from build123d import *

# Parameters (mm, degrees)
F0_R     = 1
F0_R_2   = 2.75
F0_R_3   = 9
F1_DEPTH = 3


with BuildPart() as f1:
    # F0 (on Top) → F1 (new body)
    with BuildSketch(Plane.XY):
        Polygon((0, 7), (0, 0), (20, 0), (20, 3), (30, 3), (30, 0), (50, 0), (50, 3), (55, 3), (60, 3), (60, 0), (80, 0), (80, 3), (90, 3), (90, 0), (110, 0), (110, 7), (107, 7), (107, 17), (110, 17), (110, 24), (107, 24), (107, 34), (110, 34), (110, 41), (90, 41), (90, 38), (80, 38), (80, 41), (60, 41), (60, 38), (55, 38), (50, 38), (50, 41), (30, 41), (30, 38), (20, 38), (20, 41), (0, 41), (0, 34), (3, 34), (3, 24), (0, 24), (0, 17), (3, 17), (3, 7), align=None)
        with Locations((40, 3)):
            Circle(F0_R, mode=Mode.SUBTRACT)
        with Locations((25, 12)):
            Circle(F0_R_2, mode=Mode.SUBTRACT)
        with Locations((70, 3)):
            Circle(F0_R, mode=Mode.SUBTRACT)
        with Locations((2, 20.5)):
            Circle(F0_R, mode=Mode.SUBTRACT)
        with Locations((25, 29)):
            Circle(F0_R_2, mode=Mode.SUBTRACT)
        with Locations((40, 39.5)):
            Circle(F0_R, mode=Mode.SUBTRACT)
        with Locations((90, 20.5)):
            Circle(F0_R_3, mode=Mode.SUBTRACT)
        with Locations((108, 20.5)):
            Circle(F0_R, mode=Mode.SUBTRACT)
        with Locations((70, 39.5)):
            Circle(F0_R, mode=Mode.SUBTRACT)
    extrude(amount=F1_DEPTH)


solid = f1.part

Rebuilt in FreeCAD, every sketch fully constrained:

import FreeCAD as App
import Part
import Sketcher

doc = App.newDocument("Part")
body = doc.addObject("PartDesign::Body", "Body")

# Sketch on XY plane
sketch1 = body.newObject("Sketcher::SketchObject", "Sketch")
sketch1.AttachmentSupport = (doc.getObject("XY_Plane"), [""])
sketch1.MapMode = "FlatFace"
sketch1.addGeometry(Part.LineSegment(App.Vector(0, 7, 0), App.Vector(0, 0, 0)), False)
sketch1.addGeometry(Part.LineSegment(App.Vector(0, 0, 0), App.Vector(20, 0, 0)), False)
sketch1.addGeometry(Part.LineSegment(App.Vector(20, 0, 0), App.Vector(20, 3, 0)), False)
sketch1.addGeometry(Part.LineSegment(App.Vector(20, 3, 0), App.Vector(30, 3, 0)), False)
sketch1.addGeometry(Part.LineSegment(App.Vector(30, 3, 0), App.Vector(30, 0, 0)), False)
sketch1.addGeometry(Part.LineSegment(App.Vector(30, 0, 0), App.Vector(50, 0, 0)), False)
sketch1.addGeometry(Part.LineSegment(App.Vector(50, 0, 0), App.Vector(50, 3, 0)), False)
sketch1.addGeometry(Part.LineSegment(App.Vector(50, 3, 0), App.Vector(60, 3, 0)), False)
sketch1.addGeometry(Part.LineSegment(App.Vector(60, 3, 0), App.Vector(60, 0, 0)), False)
sketch1.addGeometry(Part.LineSegment(App.Vector(60, 0, 0), App.Vector(80, 0, 0)), False)
sketch1.addGeometry(Part.LineSegment(App.Vector(80, 0, 0), App.Vector(80, 3, 0)), False)
sketch1.addGeometry(Part.LineSegment(App.Vector(80, 3, 0), App.Vector(90, 3, 0)), False)
sketch1.addGeometry(Part.LineSegment(App.Vector(90, 3, 0), App.Vector(90, 0, 0)), False)
sketch1.addGeometry(Part.LineSegment(App.Vector(90, 0, 0), App.Vector(110, 0, 0)), False)
sketch1.addGeometry(Part.LineSegment(App.Vector(110, 0, 0), App.Vector(110, 7, 0)), False)
sketch1.addGeometry(Part.LineSegment(App.Vector(110, 7, 0), App.Vector(107, 7, 0)), False)
sketch1.addGeometry(Part.LineSegment(App.Vector(107, 7, 0), App.Vector(107, 17, 0)), False)
sketch1.addGeometry(Part.LineSegment(App.Vector(107, 17, 0), App.Vector(110, 17, 0)), False)
sketch1.addGeometry(Part.LineSegment(App.Vector(110, 17, 0), App.Vector(110, 24, 0)), False)
sketch1.addGeometry(Part.LineSegment(App.Vector(110, 24, 0), App.Vector(107, 24, 0)), False)
sketch1.addGeometry(Part.LineSegment(App.Vector(107, 24, 0), App.Vector(107, 34, 0)), False)
sketch1.addGeometry(Part.LineSegment(App.Vector(107, 34, 0), App.Vector(110, 34, 0)), False)
sketch1.addGeometry(Part.LineSegment(App.Vector(110, 34, 0), App.Vector(110, 41, 0)), False)
sketch1.addGeometry(Part.LineSegment(App.Vector(110, 41, 0), App.Vector(90, 41, 0)), False)
sketch1.addGeometry(Part.LineSegment(App.Vector(90, 41, 0), App.Vector(90, 38, 0)), False)
sketch1.addGeometry(Part.LineSegment(App.Vector(90, 38, 0), App.Vector(80, 38, 0)), False)
sketch1.addGeometry(Part.LineSegment(App.Vector(80, 38, 0), App.Vector(80, 41, 0)), False)
sketch1.addGeometry(Part.LineSegment(App.Vector(80, 41, 0), App.Vector(60, 41, 0)), False)
sketch1.addGeometry(Part.LineSegment(App.Vector(60, 41, 0), App.Vector(60, 38, 0)), False)
sketch1.addGeometry(Part.LineSegment(App.Vector(60, 38, 0), App.Vector(50, 38, 0)), False)
sketch1.addGeometry(Part.LineSegment(App.Vector(50, 38, 0), App.Vector(50, 41, 0)), False)
sketch1.addGeometry(Part.LineSegment(App.Vector(50, 41, 0), App.Vector(30, 41, 0)), False)
sketch1.addGeometry(Part.LineSegment(App.Vector(30, 41, 0), App.Vector(30, 38, 0)), False)
sketch1.addGeometry(Part.LineSegment(App.Vector(30, 38, 0), App.Vector(20, 38, 0)), False)
sketch1.addGeometry(Part.LineSegment(App.Vector(20, 38, 0), App.Vector(20, 41, 0)), False)
sketch1.addGeometry(Part.LineSegment(App.Vector(20, 41, 0), App.Vector(0, 41, 0)), False)
sketch1.addGeometry(Part.LineSegment(App.Vector(0, 41, 0), App.Vector(0, 34, 0)), False)
sketch1.addGeometry(Part.LineSegment(App.Vector(0, 34, 0), App.Vector(3, 34, 0)), False)
sketch1.addGeometry(Part.LineSegment(App.Vector(3, 34, 0), App.Vector(3, 24, 0)), False)
sketch1.addGeometry(Part.LineSegment(App.Vector(3, 24, 0), App.Vector(0, 24, 0)), False)
sketch1.addGeometry(Part.LineSegment(App.Vector(0, 24, 0), App.Vector(0, 17, 0)), False)
sketch1.addGeometry(Part.LineSegment(App.Vector(0, 17, 0), App.Vector(3, 17, 0)), False)
sketch1.addGeometry(Part.LineSegment(App.Vector(3, 17, 0), App.Vector(3, 7, 0)), False)
sketch1.addGeometry(Part.LineSegment(App.Vector(3, 7, 0), App.Vector(0, 7, 0)), False)
sketch1.addGeometry(Part.Circle(App.Vector(40, 3, 0), App.Vector(0, 0, 1), 1), False)
sketch1.addGeometry(Part.Circle(App.Vector(25, 12, 0), App.Vector(0, 0, 1), 2.8), False)
sketch1.addGeometry(Part.Circle(App.Vector(2, 20.5, 0), App.Vector(0, 0, 1), 1), False)
sketch1.addGeometry(Part.Circle(App.Vector(70, 3, 0), App.Vector(0, 0, 1), 1), False)
sketch1.addGeometry(Part.Circle(App.Vector(90, 20.5, 0), App.Vector(0, 0, 1), 9), False)
sketch1.addGeometry(Part.Circle(App.Vector(108, 20.5, 0), App.Vector(0, 0, 1), 1), False)
sketch1.addGeometry(Part.Circle(App.Vector(25, 29, 0), App.Vector(0, 0, 1), 2.8), False)
sketch1.addGeometry(Part.Circle(App.Vector(40, 39.5, 0), App.Vector(0, 0, 1), 1), False)
sketch1.addGeometry(Part.Circle(App.Vector(70, 39.5, 0), App.Vector(0, 0, 1), 1), False)
sketch1.addConstraint(Sketcher.Constraint("Coincident", 0, 2, 1, 1))
sketch1.addConstraint(Sketcher.Constraint("Coincident", 1, 2, 2, 1))
sketch1.addConstraint(Sketcher.Constraint("Coincident", 2, 2, 3, 1))
sketch1.addConstraint(Sketcher.Constraint("Coincident", 3, 2, 4, 1))
sketch1.addConstraint(Sketcher.Constraint("Coincident", 4, 2, 5, 1))
sketch1.addConstraint(Sketcher.Constraint("Coincident", 5, 2, 6, 1))
sketch1.addConstraint(Sketcher.Constraint("Coincident", 6, 2, 7, 1))
sketch1.addConstraint(Sketcher.Constraint("Coincident", 7, 2, 8, 1))
sketch1.addConstraint(Sketcher.Constraint("Coincident", 8, 2, 9, 1))
sketch1.addConstraint(Sketcher.Constraint("Coincident", 9, 2, 10, 1))
sketch1.addConstraint(Sketcher.Constraint("Coincident", 10, 2, 11, 1))
sketch1.addConstraint(Sketcher.Constraint("Coincident", 11, 2, 12, 1))
sketch1.addConstraint(Sketcher.Constraint("Coincident", 12, 2, 13, 1))
sketch1.addConstraint(Sketcher.Constraint("Coincident", 13, 2, 14, 1))
sketch1.addConstraint(Sketcher.Constraint("Coincident", 14, 2, 15, 1))
sketch1.addConstraint(Sketcher.Constraint("Coincident", 15, 2, 16, 1))
sketch1.addConstraint(Sketcher.Constraint("Coincident", 16, 2, 17, 1))
sketch1.addConstraint(Sketcher.Constraint("Coincident", 17, 2, 18, 1))
sketch1.addConstraint(Sketcher.Constraint("Coincident", 18, 2, 19, 1))
sketch1.addConstraint(Sketcher.Constraint("Coincident", 19, 2, 20, 1))
sketch1.addConstraint(Sketcher.Constraint("Coincident", 20, 2, 21, 1))
sketch1.addConstraint(Sketcher.Constraint("Coincident", 21, 2, 22, 1))
sketch1.addConstraint(Sketcher.Constraint("Coincident", 22, 2, 23, 1))
sketch1.addConstraint(Sketcher.Constraint("Coincident", 23, 2, 24, 1))
sketch1.addConstraint(Sketcher.Constraint("Coincident", 24, 2, 25, 1))
sketch1.addConstraint(Sketcher.Constraint("Coincident", 25, 2, 26, 1))
sketch1.addConstraint(Sketcher.Constraint("Coincident", 26, 2, 27, 1))
sketch1.addConstraint(Sketcher.Constraint("Coincident", 27, 2, 28, 1))
sketch1.addConstraint(Sketcher.Constraint("Coincident", 28, 2, 29, 1))
sketch1.addConstraint(Sketcher.Constraint("Coincident", 29, 2, 30, 1))
sketch1.addConstraint(Sketcher.Constraint("Coincident", 30, 2, 31, 1))
sketch1.addConstraint(Sketcher.Constraint("Coincident", 31, 2, 32, 1))
sketch1.addConstraint(Sketcher.Constraint("Coincident", 32, 2, 33, 1))
sketch1.addConstraint(Sketcher.Constraint("Coincident", 33, 2, 34, 1))
sketch1.addConstraint(Sketcher.Constraint("Coincident", 34, 2, 35, 1))
sketch1.addConstraint(Sketcher.Constraint("Coincident", 35, 2, 36, 1))
sketch1.addConstraint(Sketcher.Constraint("Coincident", 36, 2, 37, 1))
sketch1.addConstraint(Sketcher.Constraint("Coincident", 37, 2, 38, 1))
sketch1.addConstraint(Sketcher.Constraint("Coincident", 38, 2, 39, 1))
sketch1.addConstraint(Sketcher.Constraint("Coincident", 39, 2, 40, 1))
sketch1.addConstraint(Sketcher.Constraint("Coincident", 40, 2, 41, 1))
sketch1.addConstraint(Sketcher.Constraint("Coincident", 41, 2, 42, 1))
sketch1.addConstraint(Sketcher.Constraint("Coincident", 42, 2, 43, 1))
sketch1.addConstraint(Sketcher.Constraint("Coincident", 43, 2, 0, 1))
sketch1.addConstraint(Sketcher.Constraint("Vertical", 0))
sketch1.addConstraint(Sketcher.Constraint("Horizontal", 1))
sketch1.addConstraint(Sketcher.Constraint("Vertical", 2))
sketch1.addConstraint(Sketcher.Constraint("Horizontal", 3))
sketch1.addConstraint(Sketcher.Constraint("Vertical", 4))
sketch1.addConstraint(Sketcher.Constraint("Horizontal", 5))
sketch1.addConstraint(Sketcher.Constraint("Vertical", 6))
sketch1.addConstraint(Sketcher.Constraint("Horizontal", 7))
sketch1.addConstraint(Sketcher.Constraint("Vertical", 8))
sketch1.addConstraint(Sketcher.Constraint("Horizontal", 9))
sketch1.addConstraint(Sketcher.Constraint("Vertical", 10))
sketch1.addConstraint(Sketcher.Constraint("Horizontal", 11))
sketch1.addConstraint(Sketcher.Constraint("Vertical", 12))
sketch1.addConstraint(Sketcher.Constraint("Horizontal", 13))
sketch1.addConstraint(Sketcher.Constraint("Vertical", 14))
sketch1.addConstraint(Sketcher.Constraint("Horizontal", 15))
sketch1.addConstraint(Sketcher.Constraint("Vertical", 16))
sketch1.addConstraint(Sketcher.Constraint("Horizontal", 17))
sketch1.addConstraint(Sketcher.Constraint("Vertical", 18))
sketch1.addConstraint(Sketcher.Constraint("Horizontal", 19))
sketch1.addConstraint(Sketcher.Constraint("Vertical", 20))
sketch1.addConstraint(Sketcher.Constraint("Horizontal", 21))
sketch1.addConstraint(Sketcher.Constraint("Vertical", 22))
sketch1.addConstraint(Sketcher.Constraint("Horizontal", 23))
sketch1.addConstraint(Sketcher.Constraint("Vertical", 24))
sketch1.addConstraint(Sketcher.Constraint("Horizontal", 25))
sketch1.addConstraint(Sketcher.Constraint("Vertical", 26))
sketch1.addConstraint(Sketcher.Constraint("Horizontal", 27))
sketch1.addConstraint(Sketcher.Constraint("Vertical", 28))
sketch1.addConstraint(Sketcher.Constraint("Horizontal", 29))
sketch1.addConstraint(Sketcher.Constraint("Vertical", 30))
sketch1.addConstraint(Sketcher.Constraint("Horizontal", 31))
sketch1.addConstraint(Sketcher.Constraint("Vertical", 32))
sketch1.addConstraint(Sketcher.Constraint("Horizontal", 33))
sketch1.addConstraint(Sketcher.Constraint("Vertical", 34))
sketch1.addConstraint(Sketcher.Constraint("Horizontal", 35))
sketch1.addConstraint(Sketcher.Constraint("Vertical", 36))
sketch1.addConstraint(Sketcher.Constraint("Horizontal", 37))
sketch1.addConstraint(Sketcher.Constraint("Vertical", 38))
sketch1.addConstraint(Sketcher.Constraint("Horizontal", 39))
sketch1.addConstraint(Sketcher.Constraint("Vertical", 40))
sketch1.addConstraint(Sketcher.Constraint("Horizontal", 41))
sketch1.addConstraint(Sketcher.Constraint("Vertical", 42))
sketch1.addConstraint(Sketcher.Constraint("Horizontal", 43))
sketch1.addConstraint(Sketcher.Constraint("Coincident", 0, 2, -1, 1))
sketch1.addConstraint(Sketcher.Constraint("Equal", 44, 46))
sketch1.addConstraint(Sketcher.Constraint("Equal", 46, 47))
sketch1.addConstraint(Sketcher.Constraint("Equal", 47, 49))
sketch1.addConstraint(Sketcher.Constraint("Equal", 45, 50))
sketch1.addConstraint(Sketcher.Constraint("Equal", 49, 51))
sketch1.addConstraint(Sketcher.Constraint("Equal", 51, 52))
sketch1.addConstraint(Sketcher.Constraint("PointOnObject", 4, 2, -1))
sketch1.addConstraint(Sketcher.Constraint("PointOnObject", 8, 2, -1))
sketch1.addConstraint(Sketcher.Constraint("PointOnObject", 12, 2, -1))
sketch1.addConstraint(Sketcher.Constraint("PointOnObject", 35, 2, -2))
sketch1.addConstraint(Sketcher.Constraint("PointOnObject", 39, 2, -2))
sketch1.addConstraint(Sketcher.Constraint("Horizontal", 44, 3, 47, 3))
sketch1.addConstraint(Sketcher.Constraint("Horizontal", 46, 3, 48, 3))
sketch1.addConstraint(Sketcher.Constraint("Horizontal", 48, 3, 49, 3))
sketch1.addConstraint(Sketcher.Constraint("Horizontal", 51, 3, 52, 3))
sketch1.addConstraint(Sketcher.Constraint("Horizontal", 47, 3, 2, 2))
sketch1.addConstraint(Sketcher.Constraint("Horizontal", 3, 2, 6, 2))
sketch1.addConstraint(Sketcher.Constraint("Horizontal", 7, 2, 10, 2))
sketch1.addConstraint(Sketcher.Constraint("Horizontal", 23, 2, 26, 2))
sketch1.addConstraint(Sketcher.Constraint("Horizontal", 25, 2, 28, 2))
sketch1.addConstraint(Sketcher.Constraint("Horizontal", 27, 2, 30, 2))
sketch1.addConstraint(Sketcher.Constraint("Horizontal", 29, 2, 32, 2))
sketch1.addConstraint(Sketcher.Constraint("Horizontal", 31, 2, 34, 2))
sketch1.addConstraint(Sketcher.Constraint("Horizontal", 21, 2, 36, 2))
sketch1.addConstraint(Sketcher.Constraint("Horizontal", 19, 2, 38, 2))
sketch1.addConstraint(Sketcher.Constraint("Horizontal", 17, 2, 40, 2))
sketch1.addConstraint(Sketcher.Constraint("Horizontal", 15, 2, 42, 2))
sketch1.addConstraint(Sketcher.Constraint("Vertical", 45, 3, 50, 3))
sketch1.addConstraint(Sketcher.Constraint("Vertical", 44, 3, 51, 3))
sketch1.addConstraint(Sketcher.Constraint("Vertical", 47, 3, 52, 3))
sketch1.addConstraint(Sketcher.Constraint("Vertical", 48, 3, 11, 2))
sketch1.addConstraint(Sketcher.Constraint("Vertical", 14, 2, 17, 2))
sketch1.addConstraint(Sketcher.Constraint("Vertical", 16, 2, 19, 2))
sketch1.addConstraint(Sketcher.Constraint("Vertical", 18, 2, 21, 2))
sketch1.addConstraint(Sketcher.Constraint("Vertical", 12, 2, 23, 2))
sketch1.addConstraint(Sketcher.Constraint("Vertical", 10, 2, 25, 2))
sketch1.addConstraint(Sketcher.Constraint("Vertical", 8, 2, 27, 2))
sketch1.addConstraint(Sketcher.Constraint("Vertical", 6, 2, 29, 2))
sketch1.addConstraint(Sketcher.Constraint("Vertical", 4, 2, 31, 2))
sketch1.addConstraint(Sketcher.Constraint("Vertical", 2, 2, 33, 2))
sketch1.addConstraint(Sketcher.Constraint("Vertical", 38, 2, 41, 2))
sketch1.addConstraint(Sketcher.Constraint("Equal", 1, 5))
sketch1.addConstraint(Sketcher.Constraint("Equal", 3, 7))
sketch1.addConstraint(Sketcher.Constraint("Equal", 5, 9))
sketch1.addConstraint(Sketcher.Constraint("Equal", 7, 11))
sketch1.addConstraint(Sketcher.Constraint("Equal", 9, 13))
sketch1.addConstraint(Sketcher.Constraint("Equal", 21, 37))
sketch1.addConstraint(Sketcher.Constraint("Equal", 43, 2))
sketch1.addConstraint(Sketcher.Constraint("Equal", 33, 16))
sketch1.addConstraint(Sketcher.Constraint("Equal", 14, 18))
sketch1.addConstraint(Sketcher.Constraint("Equal", 16, 20))
sketch1.addConstraint(Sketcher.Constraint("Equal", 18, 22))
sketch1.addConstraint(Sketcher.Constraint("Equal", 12, 24))
sketch1.addConstraint(Sketcher.Constraint("Diameter", 44, 2.0))
sketch1.addConstraint(Sketcher.Constraint("Diameter", 48, 18.0))
sketch1.addConstraint(Sketcher.Constraint("Diameter", 45, 5.5))
sketch1.addConstraint(Sketcher.Constraint("DistanceX", 1, 1, 1, 2, 20.0))
sketch1.addConstraint(Sketcher.Constraint("DistanceX", 3, 1, 3, 2, 10.0))
sketch1.addConstraint(Sketcher.Constraint("DistanceX", 15, 2, 15, 1, 3.0))
sketch1.addConstraint(Sketcher.Constraint("DistanceY", 0, 2, 0, 1, 7.0))
sketch1.addConstraint(Sketcher.Constraint("DistanceX", -1, 1, 44, 3, 40.0))
sketch1.addConstraint(Sketcher.Constraint("DistanceX", -1, 1, 45, 3, 25.0))
sketch1.addConstraint(Sketcher.Constraint("DistanceY", -1, 1, 45, 3, 12.0))
sketch1.addConstraint(Sketcher.Constraint("DistanceX", -1, 1, 46, 3, 2.0))
sketch1.addConstraint(Sketcher.Constraint("DistanceX", -1, 1, 47, 3, 70.0))
sketch1.addConstraint(Sketcher.Constraint("DistanceX", -1, 1, 49, 3, 108.0))
sketch1.addConstraint(Sketcher.Constraint("DistanceY", -1, 1, 50, 3, 29.0))
sketch1.addConstraint(Sketcher.Constraint("DistanceY", 46, 3, 51, 3, 19.0))
sketch1.addConstraint(Sketcher.Constraint("DistanceY", -1, 1, 46, 3, 20.5))
pad1 = body.newObject("PartDesign::Pad", "Pad")
pad1.Profile = sketch1
pad1.Length = 3

doc.recompute()
